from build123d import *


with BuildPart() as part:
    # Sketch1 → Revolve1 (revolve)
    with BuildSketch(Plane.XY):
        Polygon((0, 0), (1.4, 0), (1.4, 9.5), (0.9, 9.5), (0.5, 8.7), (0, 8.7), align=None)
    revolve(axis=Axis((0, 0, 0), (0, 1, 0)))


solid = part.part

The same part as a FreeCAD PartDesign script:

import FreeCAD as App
import Part
import Sketcher

V = App.Vector
Q = App.Units.Quantity


def add_polygon(sketch, points):
    """Adds a closed chain of lines whose ends are joined by coincident constraints."""
    first, n = sketch.GeometryCount, len(points)
    for a, b in zip(points, points[1:] + points[:1]):
        sketch.addGeometry(Part.LineSegment(App.Vector(*a, 0), App.Vector(*b, 0)), False)
    for i in range(n):
        sketch.addConstraint(Sketcher.Constraint("Coincident", first + i, 2, first + (i + 1) % n, 1))

doc = App.newDocument("Part")
body = doc.addObject("PartDesign::Body", "Body")

sketch1 = body.newObject("Sketcher::SketchObject", "Sketch")
sketch1.AttachmentSupport = (doc.getObject("XY_Plane"), [""])
sketch1.MapMode = "FlatFace"
add_polygon(sketch1, [(0, 0), (1.4, 0), (1.4, 9.5), (0.9, 9.5), (0.5, 8.7), (0, 8.7)])
sketch1.addConstraint([
    Sketcher.Constraint("Horizontal", 0),
    Sketcher.Constraint("Vertical", 1),
    Sketcher.Constraint("Horizontal", 2),
    Sketcher.Constraint("Horizontal", 4),
    Sketcher.Constraint("Vertical", 5),
    Sketcher.Constraint("Coincident", 5, 2, -1, 1),
    Sketcher.Constraint("Equal", 2, 4),
    Sketcher.Constraint("DistanceX", 0, 1, 0, 2, Q("1.4 mm")),
    Sketcher.Constraint("DistanceX", 2, 2, 2, 1, Q("0.5 mm")),
    Sketcher.Constraint("DistanceY", 1, 1, 1, 2, Q("9.5 mm")),
    Sketcher.Constraint("DistanceY", 5, 2, 5, 1, Q("8.7 mm")),
])
revolution = body.newObject("PartDesign::Revolution", "Revolution")
revolution.Profile = sketch1
revolution.ReferenceAxis = (sketch1, ["V_Axis"])
revolution.Angle = 360

doc.recompute()
